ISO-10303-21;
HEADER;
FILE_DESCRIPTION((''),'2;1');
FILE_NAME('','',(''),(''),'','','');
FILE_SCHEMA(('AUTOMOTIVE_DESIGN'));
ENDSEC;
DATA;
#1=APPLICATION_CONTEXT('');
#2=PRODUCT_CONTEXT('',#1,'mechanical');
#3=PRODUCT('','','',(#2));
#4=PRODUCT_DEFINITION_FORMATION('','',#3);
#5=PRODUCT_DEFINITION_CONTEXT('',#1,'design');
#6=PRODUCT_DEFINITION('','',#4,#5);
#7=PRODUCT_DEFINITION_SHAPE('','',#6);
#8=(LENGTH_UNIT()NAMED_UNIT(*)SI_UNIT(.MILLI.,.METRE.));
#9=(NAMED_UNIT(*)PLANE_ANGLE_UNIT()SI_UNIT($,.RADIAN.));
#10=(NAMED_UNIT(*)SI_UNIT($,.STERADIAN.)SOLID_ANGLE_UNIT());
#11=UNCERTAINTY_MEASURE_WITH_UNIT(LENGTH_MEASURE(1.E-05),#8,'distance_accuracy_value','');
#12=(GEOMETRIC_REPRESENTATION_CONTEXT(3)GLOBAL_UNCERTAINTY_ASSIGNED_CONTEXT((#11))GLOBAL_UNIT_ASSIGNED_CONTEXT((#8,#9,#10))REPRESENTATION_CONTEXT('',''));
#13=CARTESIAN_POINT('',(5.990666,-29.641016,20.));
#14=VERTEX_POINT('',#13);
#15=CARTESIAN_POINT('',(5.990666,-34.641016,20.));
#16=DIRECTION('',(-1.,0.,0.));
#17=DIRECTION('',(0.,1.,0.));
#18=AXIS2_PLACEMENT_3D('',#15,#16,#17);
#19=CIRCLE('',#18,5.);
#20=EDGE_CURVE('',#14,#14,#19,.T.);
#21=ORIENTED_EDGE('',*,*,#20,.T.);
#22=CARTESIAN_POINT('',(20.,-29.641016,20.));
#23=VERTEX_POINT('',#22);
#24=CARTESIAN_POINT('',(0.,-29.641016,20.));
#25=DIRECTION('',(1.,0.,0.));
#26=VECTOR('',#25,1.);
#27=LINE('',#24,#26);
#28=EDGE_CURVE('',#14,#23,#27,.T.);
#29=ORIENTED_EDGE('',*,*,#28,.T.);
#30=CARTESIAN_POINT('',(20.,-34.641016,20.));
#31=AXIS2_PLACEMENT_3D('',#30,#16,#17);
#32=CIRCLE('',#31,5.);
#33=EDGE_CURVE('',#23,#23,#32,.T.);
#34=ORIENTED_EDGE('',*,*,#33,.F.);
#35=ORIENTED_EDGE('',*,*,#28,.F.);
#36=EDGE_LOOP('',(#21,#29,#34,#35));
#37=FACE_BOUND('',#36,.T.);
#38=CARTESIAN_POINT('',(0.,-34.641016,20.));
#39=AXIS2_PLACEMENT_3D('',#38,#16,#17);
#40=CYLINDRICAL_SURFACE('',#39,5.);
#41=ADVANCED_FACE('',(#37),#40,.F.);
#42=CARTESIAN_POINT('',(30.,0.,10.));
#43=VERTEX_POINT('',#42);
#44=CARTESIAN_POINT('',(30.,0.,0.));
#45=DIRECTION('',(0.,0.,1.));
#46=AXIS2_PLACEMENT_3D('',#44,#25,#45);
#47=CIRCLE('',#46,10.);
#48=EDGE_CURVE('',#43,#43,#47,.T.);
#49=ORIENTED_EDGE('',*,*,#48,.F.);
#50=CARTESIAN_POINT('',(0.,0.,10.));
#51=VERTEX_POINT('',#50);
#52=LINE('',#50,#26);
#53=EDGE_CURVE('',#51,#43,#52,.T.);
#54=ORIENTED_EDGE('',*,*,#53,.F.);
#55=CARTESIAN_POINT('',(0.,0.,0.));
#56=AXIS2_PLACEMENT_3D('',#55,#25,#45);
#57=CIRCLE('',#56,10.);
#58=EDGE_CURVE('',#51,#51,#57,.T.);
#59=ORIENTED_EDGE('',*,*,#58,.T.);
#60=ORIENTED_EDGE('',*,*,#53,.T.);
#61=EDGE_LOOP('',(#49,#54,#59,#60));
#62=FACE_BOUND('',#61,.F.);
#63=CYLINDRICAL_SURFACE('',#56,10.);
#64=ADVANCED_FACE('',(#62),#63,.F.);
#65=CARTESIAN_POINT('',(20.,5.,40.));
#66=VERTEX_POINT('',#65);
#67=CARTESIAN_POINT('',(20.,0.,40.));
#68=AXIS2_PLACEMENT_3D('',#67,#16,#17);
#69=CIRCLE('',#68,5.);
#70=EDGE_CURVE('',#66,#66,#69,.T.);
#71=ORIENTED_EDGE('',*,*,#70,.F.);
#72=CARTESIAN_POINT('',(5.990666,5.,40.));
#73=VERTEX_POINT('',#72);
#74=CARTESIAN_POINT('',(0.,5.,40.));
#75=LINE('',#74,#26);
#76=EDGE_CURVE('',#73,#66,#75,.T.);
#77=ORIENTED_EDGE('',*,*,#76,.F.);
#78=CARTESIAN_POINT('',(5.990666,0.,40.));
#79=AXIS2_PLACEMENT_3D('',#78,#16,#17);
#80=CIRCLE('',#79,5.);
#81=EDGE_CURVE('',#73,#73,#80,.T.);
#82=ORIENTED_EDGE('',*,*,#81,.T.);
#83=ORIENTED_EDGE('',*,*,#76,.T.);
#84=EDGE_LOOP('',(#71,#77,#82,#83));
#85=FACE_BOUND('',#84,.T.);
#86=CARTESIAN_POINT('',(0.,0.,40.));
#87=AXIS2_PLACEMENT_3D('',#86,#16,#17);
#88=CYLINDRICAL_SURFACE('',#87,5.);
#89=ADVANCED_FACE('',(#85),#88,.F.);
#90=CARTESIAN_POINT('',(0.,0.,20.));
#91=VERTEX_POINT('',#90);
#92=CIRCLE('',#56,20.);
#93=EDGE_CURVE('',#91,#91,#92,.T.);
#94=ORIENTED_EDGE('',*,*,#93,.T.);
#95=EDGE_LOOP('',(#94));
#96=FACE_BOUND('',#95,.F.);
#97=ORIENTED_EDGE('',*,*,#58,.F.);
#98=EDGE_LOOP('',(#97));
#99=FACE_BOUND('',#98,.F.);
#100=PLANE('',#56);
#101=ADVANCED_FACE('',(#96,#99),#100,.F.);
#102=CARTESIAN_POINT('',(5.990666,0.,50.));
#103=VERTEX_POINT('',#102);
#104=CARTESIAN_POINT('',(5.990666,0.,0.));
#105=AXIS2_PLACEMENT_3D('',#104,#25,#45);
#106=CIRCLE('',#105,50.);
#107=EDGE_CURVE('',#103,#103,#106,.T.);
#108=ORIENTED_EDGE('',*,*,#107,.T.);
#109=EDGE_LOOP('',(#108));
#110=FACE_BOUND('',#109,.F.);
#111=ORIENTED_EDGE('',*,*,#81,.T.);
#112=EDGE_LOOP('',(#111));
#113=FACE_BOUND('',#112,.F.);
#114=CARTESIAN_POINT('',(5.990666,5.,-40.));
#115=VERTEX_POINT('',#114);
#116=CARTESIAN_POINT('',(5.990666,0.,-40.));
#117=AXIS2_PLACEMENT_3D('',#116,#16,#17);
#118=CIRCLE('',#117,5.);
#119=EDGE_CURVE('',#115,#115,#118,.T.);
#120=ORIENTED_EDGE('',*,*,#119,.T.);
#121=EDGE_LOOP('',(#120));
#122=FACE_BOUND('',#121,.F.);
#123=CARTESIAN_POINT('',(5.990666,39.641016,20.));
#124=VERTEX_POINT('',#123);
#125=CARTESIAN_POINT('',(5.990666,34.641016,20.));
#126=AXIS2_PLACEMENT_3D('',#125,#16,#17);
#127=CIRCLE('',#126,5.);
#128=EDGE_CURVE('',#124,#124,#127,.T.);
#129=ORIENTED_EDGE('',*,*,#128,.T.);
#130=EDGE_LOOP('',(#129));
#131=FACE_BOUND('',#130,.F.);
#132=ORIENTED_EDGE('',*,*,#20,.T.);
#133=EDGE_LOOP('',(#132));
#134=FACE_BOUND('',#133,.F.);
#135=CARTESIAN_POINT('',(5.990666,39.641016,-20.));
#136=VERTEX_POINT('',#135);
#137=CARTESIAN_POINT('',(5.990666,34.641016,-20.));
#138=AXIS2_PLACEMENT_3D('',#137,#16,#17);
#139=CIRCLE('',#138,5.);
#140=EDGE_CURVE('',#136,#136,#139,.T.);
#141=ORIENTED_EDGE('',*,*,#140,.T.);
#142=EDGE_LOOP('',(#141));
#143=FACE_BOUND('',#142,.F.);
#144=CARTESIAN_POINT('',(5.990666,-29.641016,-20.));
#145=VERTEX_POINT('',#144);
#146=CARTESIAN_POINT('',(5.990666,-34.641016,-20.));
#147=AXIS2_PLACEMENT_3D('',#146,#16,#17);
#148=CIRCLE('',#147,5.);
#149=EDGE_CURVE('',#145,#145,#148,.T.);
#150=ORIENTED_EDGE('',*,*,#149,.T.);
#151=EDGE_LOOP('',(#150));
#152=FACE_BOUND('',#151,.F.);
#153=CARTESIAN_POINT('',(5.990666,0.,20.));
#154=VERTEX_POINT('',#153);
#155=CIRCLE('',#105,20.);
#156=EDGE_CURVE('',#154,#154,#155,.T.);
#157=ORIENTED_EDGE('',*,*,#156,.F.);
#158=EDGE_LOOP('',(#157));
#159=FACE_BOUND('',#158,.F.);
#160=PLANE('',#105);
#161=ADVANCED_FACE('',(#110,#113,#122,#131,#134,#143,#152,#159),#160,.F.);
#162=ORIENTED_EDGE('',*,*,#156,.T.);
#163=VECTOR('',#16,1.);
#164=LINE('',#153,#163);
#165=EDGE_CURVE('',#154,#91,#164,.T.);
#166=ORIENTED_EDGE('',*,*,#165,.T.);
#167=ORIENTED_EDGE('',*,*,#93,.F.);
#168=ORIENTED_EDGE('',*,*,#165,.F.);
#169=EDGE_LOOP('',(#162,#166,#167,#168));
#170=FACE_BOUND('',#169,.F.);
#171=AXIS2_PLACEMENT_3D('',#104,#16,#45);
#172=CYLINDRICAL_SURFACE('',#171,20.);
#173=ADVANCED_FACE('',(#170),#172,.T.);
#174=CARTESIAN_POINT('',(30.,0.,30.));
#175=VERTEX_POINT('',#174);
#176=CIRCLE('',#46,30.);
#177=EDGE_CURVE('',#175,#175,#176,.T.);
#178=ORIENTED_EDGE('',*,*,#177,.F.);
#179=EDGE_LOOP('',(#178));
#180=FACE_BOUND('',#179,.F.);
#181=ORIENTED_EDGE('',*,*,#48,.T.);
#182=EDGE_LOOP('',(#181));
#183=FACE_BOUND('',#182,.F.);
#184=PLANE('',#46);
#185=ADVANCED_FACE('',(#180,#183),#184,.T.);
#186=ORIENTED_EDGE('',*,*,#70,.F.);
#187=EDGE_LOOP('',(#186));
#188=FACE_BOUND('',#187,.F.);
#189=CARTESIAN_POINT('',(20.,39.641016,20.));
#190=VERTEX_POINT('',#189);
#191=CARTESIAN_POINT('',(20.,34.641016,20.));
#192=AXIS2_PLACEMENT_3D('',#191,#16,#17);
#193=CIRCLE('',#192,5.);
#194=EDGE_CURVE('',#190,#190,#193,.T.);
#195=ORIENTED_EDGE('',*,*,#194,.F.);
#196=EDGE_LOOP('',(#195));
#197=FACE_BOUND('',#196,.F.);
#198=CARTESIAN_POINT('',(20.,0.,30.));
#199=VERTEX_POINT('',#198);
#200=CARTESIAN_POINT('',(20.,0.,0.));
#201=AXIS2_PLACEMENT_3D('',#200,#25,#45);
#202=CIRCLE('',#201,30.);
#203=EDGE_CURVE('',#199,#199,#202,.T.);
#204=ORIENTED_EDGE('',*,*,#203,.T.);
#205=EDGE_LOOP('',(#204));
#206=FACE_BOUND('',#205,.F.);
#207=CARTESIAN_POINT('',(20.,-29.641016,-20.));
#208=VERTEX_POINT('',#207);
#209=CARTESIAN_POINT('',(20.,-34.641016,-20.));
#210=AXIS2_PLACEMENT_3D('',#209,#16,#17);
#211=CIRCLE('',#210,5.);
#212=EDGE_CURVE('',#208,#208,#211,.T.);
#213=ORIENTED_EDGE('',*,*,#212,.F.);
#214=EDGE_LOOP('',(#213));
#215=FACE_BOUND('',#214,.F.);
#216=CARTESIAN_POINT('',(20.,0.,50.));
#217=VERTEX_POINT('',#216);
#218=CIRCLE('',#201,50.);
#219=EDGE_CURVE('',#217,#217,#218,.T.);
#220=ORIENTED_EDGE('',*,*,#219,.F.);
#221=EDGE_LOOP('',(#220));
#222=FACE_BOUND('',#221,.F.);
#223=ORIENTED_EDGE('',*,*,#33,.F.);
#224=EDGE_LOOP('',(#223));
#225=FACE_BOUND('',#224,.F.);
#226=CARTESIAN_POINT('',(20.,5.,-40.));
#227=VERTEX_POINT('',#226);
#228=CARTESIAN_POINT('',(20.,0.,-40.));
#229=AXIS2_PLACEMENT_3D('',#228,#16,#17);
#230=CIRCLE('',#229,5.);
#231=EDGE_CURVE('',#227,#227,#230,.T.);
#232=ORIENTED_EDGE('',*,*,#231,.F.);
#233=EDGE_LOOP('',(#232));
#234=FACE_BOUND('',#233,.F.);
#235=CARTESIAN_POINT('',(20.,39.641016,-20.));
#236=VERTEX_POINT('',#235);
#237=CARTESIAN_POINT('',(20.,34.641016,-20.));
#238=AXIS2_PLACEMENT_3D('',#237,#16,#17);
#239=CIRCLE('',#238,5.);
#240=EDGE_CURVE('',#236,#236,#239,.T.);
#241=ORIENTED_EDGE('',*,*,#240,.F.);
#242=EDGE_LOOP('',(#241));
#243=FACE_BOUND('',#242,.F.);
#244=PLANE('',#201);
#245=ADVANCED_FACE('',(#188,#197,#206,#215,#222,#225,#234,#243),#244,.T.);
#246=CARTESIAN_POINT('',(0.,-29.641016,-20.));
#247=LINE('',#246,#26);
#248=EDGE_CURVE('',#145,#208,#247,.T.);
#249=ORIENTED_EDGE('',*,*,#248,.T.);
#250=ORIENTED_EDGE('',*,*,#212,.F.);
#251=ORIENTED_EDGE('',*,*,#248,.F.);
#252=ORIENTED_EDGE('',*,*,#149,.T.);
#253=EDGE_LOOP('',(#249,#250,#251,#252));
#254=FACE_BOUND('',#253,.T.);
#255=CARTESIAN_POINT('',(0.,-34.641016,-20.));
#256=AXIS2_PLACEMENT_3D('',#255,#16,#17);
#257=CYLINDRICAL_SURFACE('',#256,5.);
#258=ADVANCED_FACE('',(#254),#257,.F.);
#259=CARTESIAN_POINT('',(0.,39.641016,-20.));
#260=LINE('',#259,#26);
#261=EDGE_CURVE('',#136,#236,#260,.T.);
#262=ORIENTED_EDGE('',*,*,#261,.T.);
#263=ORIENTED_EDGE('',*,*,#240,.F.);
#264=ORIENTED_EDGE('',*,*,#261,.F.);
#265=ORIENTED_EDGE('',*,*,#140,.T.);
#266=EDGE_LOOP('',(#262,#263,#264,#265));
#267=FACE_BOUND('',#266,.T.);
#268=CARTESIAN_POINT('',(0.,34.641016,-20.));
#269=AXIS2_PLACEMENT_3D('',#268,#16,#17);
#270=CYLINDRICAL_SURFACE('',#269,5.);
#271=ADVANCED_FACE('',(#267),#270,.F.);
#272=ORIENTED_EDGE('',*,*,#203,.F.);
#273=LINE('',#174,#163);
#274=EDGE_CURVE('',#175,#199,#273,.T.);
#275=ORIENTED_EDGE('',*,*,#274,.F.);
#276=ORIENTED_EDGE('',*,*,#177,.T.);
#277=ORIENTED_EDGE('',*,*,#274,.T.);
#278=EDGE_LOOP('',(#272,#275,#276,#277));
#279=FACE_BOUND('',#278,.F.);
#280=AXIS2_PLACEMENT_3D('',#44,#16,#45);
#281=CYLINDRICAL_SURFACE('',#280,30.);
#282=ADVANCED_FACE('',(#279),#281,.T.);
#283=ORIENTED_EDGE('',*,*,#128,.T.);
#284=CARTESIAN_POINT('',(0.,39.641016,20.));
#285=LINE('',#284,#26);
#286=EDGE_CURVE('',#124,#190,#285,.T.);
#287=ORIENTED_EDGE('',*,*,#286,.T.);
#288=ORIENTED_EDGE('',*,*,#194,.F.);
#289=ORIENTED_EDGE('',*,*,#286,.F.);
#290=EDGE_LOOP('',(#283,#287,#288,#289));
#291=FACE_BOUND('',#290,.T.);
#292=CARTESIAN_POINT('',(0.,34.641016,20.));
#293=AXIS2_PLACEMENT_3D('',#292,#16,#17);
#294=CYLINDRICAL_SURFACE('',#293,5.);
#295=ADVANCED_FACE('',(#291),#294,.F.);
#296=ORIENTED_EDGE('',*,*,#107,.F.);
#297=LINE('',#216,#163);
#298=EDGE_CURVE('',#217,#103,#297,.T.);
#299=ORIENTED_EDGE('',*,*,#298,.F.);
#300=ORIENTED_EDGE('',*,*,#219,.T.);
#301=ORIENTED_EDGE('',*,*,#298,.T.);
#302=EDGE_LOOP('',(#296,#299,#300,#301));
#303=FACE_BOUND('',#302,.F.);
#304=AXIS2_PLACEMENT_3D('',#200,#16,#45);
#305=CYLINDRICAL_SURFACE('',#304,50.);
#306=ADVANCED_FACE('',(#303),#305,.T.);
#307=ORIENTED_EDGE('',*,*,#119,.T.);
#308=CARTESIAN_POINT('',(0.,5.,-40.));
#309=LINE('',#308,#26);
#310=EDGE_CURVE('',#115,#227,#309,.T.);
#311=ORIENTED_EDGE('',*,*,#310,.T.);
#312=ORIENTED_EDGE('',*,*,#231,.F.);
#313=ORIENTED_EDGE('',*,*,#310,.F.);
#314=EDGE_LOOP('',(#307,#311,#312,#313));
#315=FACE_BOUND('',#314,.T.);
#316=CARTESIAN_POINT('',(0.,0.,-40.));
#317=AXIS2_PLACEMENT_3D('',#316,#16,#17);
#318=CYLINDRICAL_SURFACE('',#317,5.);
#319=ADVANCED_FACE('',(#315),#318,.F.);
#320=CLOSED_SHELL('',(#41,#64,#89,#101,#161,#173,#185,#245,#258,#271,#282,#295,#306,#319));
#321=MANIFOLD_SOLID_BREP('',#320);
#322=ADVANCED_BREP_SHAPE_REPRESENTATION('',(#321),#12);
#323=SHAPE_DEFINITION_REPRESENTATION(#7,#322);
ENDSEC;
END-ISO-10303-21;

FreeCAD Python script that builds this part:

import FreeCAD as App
import Part
import Sketcher


def add_polygon(sketch, points):
    """Adds a closed chain of lines whose ends are joined by coincident constraints."""
    first, n = sketch.GeometryCount, len(points)
    for a, b in zip(points, points[1:] + points[:1]):
        sketch.addGeometry(Part.LineSegment(App.Vector(*a, 0), App.Vector(*b, 0)), False)
    for i in range(n):
        sketch.addConstraint(Sketcher.Constraint("Coincident", first + i, 2, first + (i + 1) % n, 1))

doc = App.newDocument("Part")
body = doc.addObject("PartDesign::Body", "Body")

# Sketch on XZ plane
sketch1 = body.newObject("Sketcher::SketchObject", "Sketch")
sketch1.AttachmentSupport = (doc.getObject("XZ_Plane"), [""])
sketch1.MapMode = "FlatFace"
add_polygon(sketch1, [(0, 20), (0, 10), (30, 10), (30, 30), (20, 30), (20, 50), (6, 50), (6, 20)])  # lines 0-7
sketch1.addConstraint([
    Sketcher.Constraint("Vertical", 0),
    Sketcher.Constraint("Horizontal", 1),
    Sketcher.Constraint("Vertical", 2),
    Sketcher.Constraint("Horizontal", 3),
    Sketcher.Constraint("Vertical", 4),
    Sketcher.Constraint("Horizontal", 5),
    Sketcher.Constraint("Vertical", 6),
    Sketcher.Constraint("Horizontal", 7),
    Sketcher.Constraint("PointOnObject", 0, 2, -2),
    Sketcher.Constraint("Equal", 3, 0),
    Sketcher.Constraint("Equal", 2, 4),
    Sketcher.Constraint("Equal", 1, 6),
    Sketcher.Constraint("DistanceX", 1, 1, 1, 2, 30.0),
    Sketcher.Constraint("DistanceX", 3, 2, 3, 1, 10.0),
    Sketcher.Constraint("DistanceY", -1, 1, 0, 2, 10.0),
    Sketcher.Constraint("DistanceX", 5, 2, 5, 1, 14.009334),
])
revolution = body.newObject("PartDesign::Revolution", "Revolution")
revolution.Profile = sketch1
revolution.ReferenceAxis = (sketch1, ["H_Axis"])
revolution.Angle = 360

# Sketch on YZ plane
sketch2 = body.newObject("Sketcher::SketchObject", "Sketch001")
sketch2.AttachmentSupport = (doc.getObject("YZ_Plane"), [""])
sketch2.MapMode = "FlatFace"
sketch2.addGeometry([
    Part.Circle(App.Vector(0, 40, 0), App.Vector(0, 0, 1), 5),  # 0
    Part.Circle(App.Vector(-35, 20, 0), App.Vector(0, 0, 1), 5),  # 1
    Part.Circle(App.Vector(-35, -20, 0), App.Vector(0, 0, 1), 5),  # 2
    Part.Circle(App.Vector(0, -40, 0), App.Vector(0, 0, 1), 5),  # 3
    Part.Circle(App.Vector(35, -20, 0), App.Vector(0, 0, 1), 5),  # 4
    Part.Circle(App.Vector(35, 20, 0), App.Vector(0, 0, 1), 5),  # 5
], False)
sketch2.addConstraint([
    Sketcher.Constraint("Equal", 0, 1),
    Sketcher.Constraint("Equal", 1, 2),
    Sketcher.Constraint("Equal", 2, 3),
    Sketcher.Constraint("Equal", 3, 4),
    Sketcher.Constraint("Equal", 4, 5),
    Sketcher.Constraint("Symmetric", 0, 3, 3, 3, -1, 1),
    Sketcher.Constraint("Symmetric", 1, 3, 4, 3, -1, 1),
    Sketcher.Constraint("Symmetric", 2, 3, 5, 3, -1, 1),
    Sketcher.Constraint("Symmetric", 2, 3, 4, 3, -2),
    Sketcher.Constraint("PointOnObject", 0, 3, -2),
    Sketcher.Constraint("Diameter", 0, 10.0),
    Sketcher.Constraint("DistanceY", -1, 1, 0, 3, 40.0),
    Sketcher.Constraint("DistanceY", -1, 1, 1, 3, 20.0),
    Sketcher.Constraint("DistanceX", 2, 3, 4, 3, 69.282032),
])
pocket1 = body.newObject("PartDesign::Pocket", "Pocket")
pocket1.Profile = sketch2
pocket1.Type = "ThroughAll"
pocket1.Reversed = True

doc.recompute()
